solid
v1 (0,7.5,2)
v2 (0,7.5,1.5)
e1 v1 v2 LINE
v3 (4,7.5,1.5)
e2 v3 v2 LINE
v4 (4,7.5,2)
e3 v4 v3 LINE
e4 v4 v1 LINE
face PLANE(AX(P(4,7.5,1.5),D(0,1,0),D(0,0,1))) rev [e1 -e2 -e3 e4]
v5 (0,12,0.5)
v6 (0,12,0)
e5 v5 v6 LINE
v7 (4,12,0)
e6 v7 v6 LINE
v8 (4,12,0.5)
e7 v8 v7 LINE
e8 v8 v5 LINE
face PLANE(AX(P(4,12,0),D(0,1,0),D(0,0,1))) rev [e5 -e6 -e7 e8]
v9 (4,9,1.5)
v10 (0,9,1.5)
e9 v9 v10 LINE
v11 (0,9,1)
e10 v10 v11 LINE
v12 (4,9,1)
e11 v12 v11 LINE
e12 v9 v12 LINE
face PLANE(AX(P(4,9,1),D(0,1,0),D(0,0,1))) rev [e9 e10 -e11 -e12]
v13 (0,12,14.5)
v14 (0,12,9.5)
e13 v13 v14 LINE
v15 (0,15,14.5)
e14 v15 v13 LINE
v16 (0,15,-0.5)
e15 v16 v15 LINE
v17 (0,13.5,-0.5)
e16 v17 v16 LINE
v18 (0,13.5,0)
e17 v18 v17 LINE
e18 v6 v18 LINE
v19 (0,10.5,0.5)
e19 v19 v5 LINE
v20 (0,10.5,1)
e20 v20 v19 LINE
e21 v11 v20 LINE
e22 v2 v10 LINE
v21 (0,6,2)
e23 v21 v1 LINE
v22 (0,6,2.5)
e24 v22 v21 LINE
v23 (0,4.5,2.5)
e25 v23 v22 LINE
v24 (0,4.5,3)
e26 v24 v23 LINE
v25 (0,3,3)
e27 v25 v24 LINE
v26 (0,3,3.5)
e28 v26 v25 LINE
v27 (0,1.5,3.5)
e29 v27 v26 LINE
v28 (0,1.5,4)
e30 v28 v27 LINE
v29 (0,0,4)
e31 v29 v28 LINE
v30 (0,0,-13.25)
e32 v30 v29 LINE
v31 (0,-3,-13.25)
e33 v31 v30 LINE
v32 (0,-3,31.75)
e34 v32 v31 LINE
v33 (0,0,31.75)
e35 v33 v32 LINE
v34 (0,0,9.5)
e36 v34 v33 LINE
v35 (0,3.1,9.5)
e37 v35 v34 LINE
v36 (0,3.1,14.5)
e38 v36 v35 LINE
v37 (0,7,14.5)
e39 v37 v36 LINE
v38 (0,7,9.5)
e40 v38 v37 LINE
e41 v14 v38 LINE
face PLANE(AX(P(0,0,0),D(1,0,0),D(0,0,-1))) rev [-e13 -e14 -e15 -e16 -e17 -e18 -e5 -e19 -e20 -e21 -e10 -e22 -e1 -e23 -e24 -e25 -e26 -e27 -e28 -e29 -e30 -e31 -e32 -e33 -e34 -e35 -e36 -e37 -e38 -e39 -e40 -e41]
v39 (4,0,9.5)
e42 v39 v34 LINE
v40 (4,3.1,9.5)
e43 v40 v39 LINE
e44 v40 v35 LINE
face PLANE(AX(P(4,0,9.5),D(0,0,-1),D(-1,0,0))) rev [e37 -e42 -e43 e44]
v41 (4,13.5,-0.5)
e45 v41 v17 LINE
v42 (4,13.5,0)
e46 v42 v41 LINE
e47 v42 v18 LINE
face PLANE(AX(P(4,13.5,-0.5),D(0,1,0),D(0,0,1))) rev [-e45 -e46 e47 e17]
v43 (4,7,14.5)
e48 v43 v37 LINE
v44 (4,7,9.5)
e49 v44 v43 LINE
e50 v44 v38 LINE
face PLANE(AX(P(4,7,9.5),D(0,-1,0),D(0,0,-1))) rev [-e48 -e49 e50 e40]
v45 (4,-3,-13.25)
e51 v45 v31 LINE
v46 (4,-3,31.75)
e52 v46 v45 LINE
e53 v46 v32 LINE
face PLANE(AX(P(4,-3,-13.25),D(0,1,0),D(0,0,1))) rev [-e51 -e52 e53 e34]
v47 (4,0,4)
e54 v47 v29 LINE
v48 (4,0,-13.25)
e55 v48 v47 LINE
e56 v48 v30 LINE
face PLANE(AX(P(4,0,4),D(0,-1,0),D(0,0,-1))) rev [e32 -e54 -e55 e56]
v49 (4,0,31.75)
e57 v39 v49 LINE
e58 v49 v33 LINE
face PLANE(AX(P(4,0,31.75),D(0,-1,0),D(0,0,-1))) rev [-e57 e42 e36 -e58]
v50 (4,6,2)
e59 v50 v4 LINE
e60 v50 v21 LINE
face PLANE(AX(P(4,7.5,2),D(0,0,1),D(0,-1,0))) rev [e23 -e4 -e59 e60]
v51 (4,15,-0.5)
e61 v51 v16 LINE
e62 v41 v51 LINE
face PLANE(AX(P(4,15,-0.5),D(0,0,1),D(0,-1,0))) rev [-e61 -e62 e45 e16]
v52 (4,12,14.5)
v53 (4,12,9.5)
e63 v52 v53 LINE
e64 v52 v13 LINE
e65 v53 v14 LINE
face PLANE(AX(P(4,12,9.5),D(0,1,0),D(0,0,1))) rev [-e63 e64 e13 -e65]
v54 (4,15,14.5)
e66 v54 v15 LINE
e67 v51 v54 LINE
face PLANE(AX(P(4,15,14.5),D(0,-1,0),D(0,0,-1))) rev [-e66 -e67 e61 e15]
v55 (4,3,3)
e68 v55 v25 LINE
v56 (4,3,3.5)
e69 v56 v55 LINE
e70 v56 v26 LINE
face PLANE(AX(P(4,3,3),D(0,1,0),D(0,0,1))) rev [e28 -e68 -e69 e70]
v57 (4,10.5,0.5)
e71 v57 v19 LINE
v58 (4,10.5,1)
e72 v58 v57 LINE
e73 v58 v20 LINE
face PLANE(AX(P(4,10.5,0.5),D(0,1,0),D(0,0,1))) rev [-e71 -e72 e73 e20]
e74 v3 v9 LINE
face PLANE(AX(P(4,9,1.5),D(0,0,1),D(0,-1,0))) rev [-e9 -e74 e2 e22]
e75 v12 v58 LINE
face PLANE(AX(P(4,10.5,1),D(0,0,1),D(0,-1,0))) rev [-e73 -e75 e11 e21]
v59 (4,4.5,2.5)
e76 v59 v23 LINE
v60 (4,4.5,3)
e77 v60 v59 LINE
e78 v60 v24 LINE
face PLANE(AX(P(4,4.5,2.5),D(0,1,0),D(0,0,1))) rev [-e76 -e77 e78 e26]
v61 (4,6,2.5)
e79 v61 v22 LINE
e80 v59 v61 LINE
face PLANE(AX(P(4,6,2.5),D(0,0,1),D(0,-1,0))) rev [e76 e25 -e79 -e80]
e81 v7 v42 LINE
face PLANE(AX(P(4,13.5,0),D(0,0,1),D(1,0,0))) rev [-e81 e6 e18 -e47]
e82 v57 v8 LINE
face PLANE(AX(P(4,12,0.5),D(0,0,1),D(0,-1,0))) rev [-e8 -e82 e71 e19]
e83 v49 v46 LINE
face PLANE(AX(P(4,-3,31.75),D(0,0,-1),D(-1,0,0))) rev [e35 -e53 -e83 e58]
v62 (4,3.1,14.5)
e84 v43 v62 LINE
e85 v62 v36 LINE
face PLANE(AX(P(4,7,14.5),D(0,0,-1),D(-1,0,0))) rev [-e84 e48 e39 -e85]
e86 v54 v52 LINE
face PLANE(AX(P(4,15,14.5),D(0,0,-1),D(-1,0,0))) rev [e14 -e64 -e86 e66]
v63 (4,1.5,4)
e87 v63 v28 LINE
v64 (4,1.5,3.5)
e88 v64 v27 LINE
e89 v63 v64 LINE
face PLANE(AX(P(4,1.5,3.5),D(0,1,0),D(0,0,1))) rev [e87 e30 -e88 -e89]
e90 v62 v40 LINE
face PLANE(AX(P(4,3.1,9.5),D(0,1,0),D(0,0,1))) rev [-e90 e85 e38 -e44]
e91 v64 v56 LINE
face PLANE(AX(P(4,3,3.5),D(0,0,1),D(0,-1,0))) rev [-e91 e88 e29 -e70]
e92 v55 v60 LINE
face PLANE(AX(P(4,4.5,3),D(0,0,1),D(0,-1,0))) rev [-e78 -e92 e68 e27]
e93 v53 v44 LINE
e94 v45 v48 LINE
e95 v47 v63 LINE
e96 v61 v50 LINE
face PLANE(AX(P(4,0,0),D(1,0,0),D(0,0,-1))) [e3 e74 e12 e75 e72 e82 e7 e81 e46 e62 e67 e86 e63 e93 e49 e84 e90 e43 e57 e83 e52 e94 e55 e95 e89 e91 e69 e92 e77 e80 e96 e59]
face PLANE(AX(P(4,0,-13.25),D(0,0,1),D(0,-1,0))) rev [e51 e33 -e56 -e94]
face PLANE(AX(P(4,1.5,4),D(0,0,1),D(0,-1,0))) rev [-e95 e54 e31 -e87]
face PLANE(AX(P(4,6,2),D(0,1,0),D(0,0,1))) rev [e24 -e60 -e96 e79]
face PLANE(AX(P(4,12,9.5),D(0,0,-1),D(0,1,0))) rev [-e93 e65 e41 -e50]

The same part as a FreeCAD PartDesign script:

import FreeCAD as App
import Part
import Sketcher
from FreeCAD import Vector
Q = App.Units.Quantity


def add_polygon(sketch, points):
    """Adds a closed chain of lines whose ends are joined by coincident constraints."""
    first, n = sketch.GeometryCount, len(points)
    for a, b in zip(points, points[1:] + points[:1]):
        sketch.addGeometry(Part.LineSegment(App.Vector(*a, 0), App.Vector(*b, 0)), False)
    for i in range(n):
        sketch.addConstraint(Sketcher.Constraint("Coincident", first + i, 2, first + (i + 1) % n, 1))

doc = App.newDocument("Part")
params = doc.addObject("Spreadsheet::Sheet", "Params")
for row, (alias, value) in enumerate([
    ("sketch1_width", "3 mm"),
    ("sketch1_width2", "5 mm"),
    ("sketch1_height", "15 mm"),
    ("sketch1_height2", "45 mm"),
    ("sketch1_width3", "3.9 mm"),
    ("pad1_length", "4 mm"),
], start=1):
    params.set(f"A{row}", alias)
    params.set(f"B{row}", "=" + value)
    params.setAlias(f"B{row}", alias)

body = doc.addObject("PartDesign::Body", "Body")

sketch1 = body.newObject("Sketcher::SketchObject", "Sketch")
sketch1.AttachmentSupport = (doc.getObject("YZ_Plane"), [""])
sketch1.MapMode = "FlatFace"
add_polygon(sketch1, [(0, -13.2), (0, 4), (1.5, 4), (1.5, 3.5), (3, 3.5), (3, 3), (4.5, 3), (4.5, 2.5), (6, 2.5), (6, 2), (7.5, 2), (7.5, 1.5), (9, 1.5), (9, 1), (10.5, 1), (10.5, 0.5), (12, 0.5), (12, 0), (13.5, 0), (13.5, -0.5), (15, -0.5), (15, 14.5), (12, 14.5), (12, 9.5), (7, 9.5), (7, 14.5), (3.1, 14.5), (3.1, 9.5), (0, 9.5), (0, 31.8), (-3, 31.8), (-3, -13.2)])
sketch1.addConstraint([
    Sketcher.Constraint("Vertical", 0),
    Sketcher.Constraint("Horizontal", 1),
    Sketcher.Constraint("Vertical", 2),
    Sketcher.Constraint("Horizontal", 3),
    Sketcher.Constraint("Vertical", 4),
    Sketcher.Constraint("Horizontal", 5),
    Sketcher.Constraint("Vertical", 6),
    Sketcher.Constraint("Horizontal", 7),
    Sketcher.Constraint("Vertical", 8),
    Sketcher.Constraint("Horizontal", 9),
    Sketcher.Constraint("Vertical", 10),
    Sketcher.Constraint("Horizontal", 11),
    Sketcher.Constraint("Vertical", 12),
    Sketcher.Constraint("Horizontal", 13),
    Sketcher.Constraint("Vertical", 14),
    Sketcher.Constraint("Horizontal", 15),
    Sketcher.Constraint("Vertical", 16),
    Sketcher.Constraint("Horizontal", 17),
    Sketcher.Constraint("Vertical", 18),
    Sketcher.Constraint("Horizontal", 19),
    Sketcher.Constraint("Vertical", 20),
    Sketcher.Constraint("Horizontal", 21),
    Sketcher.Constraint("Vertical", 22),
    Sketcher.Constraint("Horizontal", 23),
    Sketcher.Constraint("Vertical", 24),
    Sketcher.Constraint("Horizontal", 25),
    Sketcher.Constraint("Vertical", 26),
    Sketcher.Constraint("Horizontal", 27),
    Sketcher.Constraint("Vertical", 28),
    Sketcher.Constraint("Horizontal", 29),
    Sketcher.Constraint("Vertical", 30),
    Sketcher.Constraint("Horizontal", 31),
    Sketcher.Constraint("PointOnObject", 0, 2, -2),
    Sketcher.Constraint("PointOnObject", 16, 2, -1),
    Sketcher.Constraint("PointOnObject", 27, 2, -2),
    Sketcher.Constraint("Horizontal", 21, 2, 24, 2),
    Sketcher.Constraint("Horizontal", 23, 2, 26, 2),
    Sketcher.Constraint("Vertical", 16, 2, 21, 2),
    Sketcher.Constraint("Equal", 1, 3),
    Sketcher.Constraint("Equal", 3, 5),
    Sketcher.Constraint("Equal", 5, 7),
    Sketcher.Constraint("Equal", 7, 9),
    Sketcher.Constraint("Equal", 9, 11),
    Sketcher.Constraint("Equal", 11, 13),
    Sketcher.Constraint("Equal", 13, 15),
    Sketcher.Constraint("Equal", 15, 17),
    Sketcher.Constraint("Equal", 17, 19),
    Sketcher.Constraint("Equal", 21, 29),
    Sketcher.Constraint("Equal", 2, 4),
    Sketcher.Constraint("Equal", 4, 6),
    Sketcher.Constraint("Equal", 6, 8),
    Sketcher.Constraint("Equal", 8, 10),
    Sketcher.Constraint("Equal", 10, 12),
    Sketcher.Constraint("Equal", 12, 14),
    Sketcher.Constraint("Equal", 14, 16),
    Sketcher.Constraint("Equal", 16, 18),
    Sketcher.Constraint("Equal", 23, 22),
    Sketcher.Constraint("DistanceX", 21, 2, 21, 1, Q("3 mm")),
    Sketcher.Constraint("DistanceX", 23, 2, 23, 1, Q("5 mm")),
    Sketcher.Constraint("DistanceY", 20, 1, 20, 2, Q("15 mm")),
    Sketcher.Constraint("DistanceY", 30, 2, 30, 1, Q("45 mm")),
    Sketcher.Constraint("DistanceX", 25, 2, 25, 1, Q("3.9 mm")),
    Sketcher.Constraint("DistanceY", 2, 2, 2, 1, Q("0.5 mm")),
    Sketcher.Constraint("DistanceY", 0, 1, 0, 2, Q("17.25 mm")),
])
sketch1.setExpression("Constraints[89]", "Params.sketch1_width")
sketch1.setExpression("Constraints[90]", "Params.sketch1_width2")
sketch1.setExpression("Constraints[91]", "Params.sketch1_height")
sketch1.setExpression("Constraints[92]", "Params.sketch1_height2")
sketch1.setExpression("Constraints[93]", "Params.sketch1_width3")
pad1 = body.newObject("PartDesign::Pad", "Pad")
pad1.Profile = sketch1
pad1.setExpression("Length", "Params.pad1_length")

doc.recompute()
